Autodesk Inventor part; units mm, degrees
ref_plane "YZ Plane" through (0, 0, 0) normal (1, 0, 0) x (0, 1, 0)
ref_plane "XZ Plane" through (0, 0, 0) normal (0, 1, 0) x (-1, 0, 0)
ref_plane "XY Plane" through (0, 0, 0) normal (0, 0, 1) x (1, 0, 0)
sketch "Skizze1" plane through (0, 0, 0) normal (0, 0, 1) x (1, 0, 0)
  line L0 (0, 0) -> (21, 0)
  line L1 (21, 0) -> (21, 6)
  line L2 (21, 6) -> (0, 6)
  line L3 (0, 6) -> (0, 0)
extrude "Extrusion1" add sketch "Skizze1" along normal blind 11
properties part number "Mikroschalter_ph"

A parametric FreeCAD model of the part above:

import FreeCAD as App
import Part
import Sketcher
from FreeCAD import Vector
Q = App.Units.Quantity

doc = App.newDocument("Part")
params = doc.addObject("Spreadsheet::Sheet", "Params")
for row, (alias, value) in enumerate([
    ("sketch1_width", "21 mm"),
    ("sketch1_height", "6 mm"),
    ("pad1_length", "11 mm"),
], start=1):
    params.set(f"A{row}", alias)
    params.set(f"B{row}", "=" + value)
    params.setAlias(f"B{row}", alias)

body = doc.addObject("PartDesign::Body", "Body")

# Sketch on XY plane
sketch1 = doc.addObject("Sketcher::SketchObject", "Sketch")
body.addObject(sketch1)
sketch1.AttachmentSupport = (doc.XY_Plane, [""])
sketch1.MapMode = "FlatFace"
sketch1.addGeometry(Part.LineSegment(Vector(0, 6, 0), Vector(0, 0, 0)), False)
sketch1.addGeometry(Part.LineSegment(Vector(0, 0, 0), Vector(21, 0, 0)), False)
sketch1.addGeometry(Part.LineSegment(Vector(21, 0, 0), Vector(21, 6, 0)), False)
sketch1.addGeometry(Part.LineSegment(Vector(21, 6, 0), Vector(0, 6, 0)), False)
sketch1.addConstraint(Sketcher.Constraint("Coincident", 0, 2, 1, 1))
sketch1.addConstraint(Sketcher.Constraint("Coincident", 1, 2, 2, 1))
sketch1.addConstraint(Sketcher.Constraint("Coincident", 2, 2, 3, 1))
sketch1.addConstraint(Sketcher.Constraint("Coincident", 3, 2, 0, 1))
sketch1.addConstraint(Sketcher.Constraint("Vertical", 0))
sketch1.addConstraint(Sketcher.Constraint("Horizontal", 1))
sketch1.addConstraint(Sketcher.Constraint("Vertical", 2))
sketch1.addConstraint(Sketcher.Constraint("Horizontal", 3))
sketch1.addConstraint(Sketcher.Constraint("Coincident", 0, 2, -1, 1))
sketch1.addConstraint(Sketcher.Constraint("DistanceX", 1, 1, 1, 2, Q("21 mm")))
sketch1.addConstraint(Sketcher.Constraint("DistanceY", 0, 2, 0, 1, Q("6 mm")))
sketch1.setExpression("Constraints[9]", "Params.sketch1_width")
sketch1.setExpression("Constraints[10]", "Params.sketch1_height")
pad1 = doc.addObject("PartDesign::Pad", "Pad")
body.addObject(pad1)
pad1.Profile = sketch1
pad1.setExpression("Length", "Params.pad1_length")

doc.recompute()
